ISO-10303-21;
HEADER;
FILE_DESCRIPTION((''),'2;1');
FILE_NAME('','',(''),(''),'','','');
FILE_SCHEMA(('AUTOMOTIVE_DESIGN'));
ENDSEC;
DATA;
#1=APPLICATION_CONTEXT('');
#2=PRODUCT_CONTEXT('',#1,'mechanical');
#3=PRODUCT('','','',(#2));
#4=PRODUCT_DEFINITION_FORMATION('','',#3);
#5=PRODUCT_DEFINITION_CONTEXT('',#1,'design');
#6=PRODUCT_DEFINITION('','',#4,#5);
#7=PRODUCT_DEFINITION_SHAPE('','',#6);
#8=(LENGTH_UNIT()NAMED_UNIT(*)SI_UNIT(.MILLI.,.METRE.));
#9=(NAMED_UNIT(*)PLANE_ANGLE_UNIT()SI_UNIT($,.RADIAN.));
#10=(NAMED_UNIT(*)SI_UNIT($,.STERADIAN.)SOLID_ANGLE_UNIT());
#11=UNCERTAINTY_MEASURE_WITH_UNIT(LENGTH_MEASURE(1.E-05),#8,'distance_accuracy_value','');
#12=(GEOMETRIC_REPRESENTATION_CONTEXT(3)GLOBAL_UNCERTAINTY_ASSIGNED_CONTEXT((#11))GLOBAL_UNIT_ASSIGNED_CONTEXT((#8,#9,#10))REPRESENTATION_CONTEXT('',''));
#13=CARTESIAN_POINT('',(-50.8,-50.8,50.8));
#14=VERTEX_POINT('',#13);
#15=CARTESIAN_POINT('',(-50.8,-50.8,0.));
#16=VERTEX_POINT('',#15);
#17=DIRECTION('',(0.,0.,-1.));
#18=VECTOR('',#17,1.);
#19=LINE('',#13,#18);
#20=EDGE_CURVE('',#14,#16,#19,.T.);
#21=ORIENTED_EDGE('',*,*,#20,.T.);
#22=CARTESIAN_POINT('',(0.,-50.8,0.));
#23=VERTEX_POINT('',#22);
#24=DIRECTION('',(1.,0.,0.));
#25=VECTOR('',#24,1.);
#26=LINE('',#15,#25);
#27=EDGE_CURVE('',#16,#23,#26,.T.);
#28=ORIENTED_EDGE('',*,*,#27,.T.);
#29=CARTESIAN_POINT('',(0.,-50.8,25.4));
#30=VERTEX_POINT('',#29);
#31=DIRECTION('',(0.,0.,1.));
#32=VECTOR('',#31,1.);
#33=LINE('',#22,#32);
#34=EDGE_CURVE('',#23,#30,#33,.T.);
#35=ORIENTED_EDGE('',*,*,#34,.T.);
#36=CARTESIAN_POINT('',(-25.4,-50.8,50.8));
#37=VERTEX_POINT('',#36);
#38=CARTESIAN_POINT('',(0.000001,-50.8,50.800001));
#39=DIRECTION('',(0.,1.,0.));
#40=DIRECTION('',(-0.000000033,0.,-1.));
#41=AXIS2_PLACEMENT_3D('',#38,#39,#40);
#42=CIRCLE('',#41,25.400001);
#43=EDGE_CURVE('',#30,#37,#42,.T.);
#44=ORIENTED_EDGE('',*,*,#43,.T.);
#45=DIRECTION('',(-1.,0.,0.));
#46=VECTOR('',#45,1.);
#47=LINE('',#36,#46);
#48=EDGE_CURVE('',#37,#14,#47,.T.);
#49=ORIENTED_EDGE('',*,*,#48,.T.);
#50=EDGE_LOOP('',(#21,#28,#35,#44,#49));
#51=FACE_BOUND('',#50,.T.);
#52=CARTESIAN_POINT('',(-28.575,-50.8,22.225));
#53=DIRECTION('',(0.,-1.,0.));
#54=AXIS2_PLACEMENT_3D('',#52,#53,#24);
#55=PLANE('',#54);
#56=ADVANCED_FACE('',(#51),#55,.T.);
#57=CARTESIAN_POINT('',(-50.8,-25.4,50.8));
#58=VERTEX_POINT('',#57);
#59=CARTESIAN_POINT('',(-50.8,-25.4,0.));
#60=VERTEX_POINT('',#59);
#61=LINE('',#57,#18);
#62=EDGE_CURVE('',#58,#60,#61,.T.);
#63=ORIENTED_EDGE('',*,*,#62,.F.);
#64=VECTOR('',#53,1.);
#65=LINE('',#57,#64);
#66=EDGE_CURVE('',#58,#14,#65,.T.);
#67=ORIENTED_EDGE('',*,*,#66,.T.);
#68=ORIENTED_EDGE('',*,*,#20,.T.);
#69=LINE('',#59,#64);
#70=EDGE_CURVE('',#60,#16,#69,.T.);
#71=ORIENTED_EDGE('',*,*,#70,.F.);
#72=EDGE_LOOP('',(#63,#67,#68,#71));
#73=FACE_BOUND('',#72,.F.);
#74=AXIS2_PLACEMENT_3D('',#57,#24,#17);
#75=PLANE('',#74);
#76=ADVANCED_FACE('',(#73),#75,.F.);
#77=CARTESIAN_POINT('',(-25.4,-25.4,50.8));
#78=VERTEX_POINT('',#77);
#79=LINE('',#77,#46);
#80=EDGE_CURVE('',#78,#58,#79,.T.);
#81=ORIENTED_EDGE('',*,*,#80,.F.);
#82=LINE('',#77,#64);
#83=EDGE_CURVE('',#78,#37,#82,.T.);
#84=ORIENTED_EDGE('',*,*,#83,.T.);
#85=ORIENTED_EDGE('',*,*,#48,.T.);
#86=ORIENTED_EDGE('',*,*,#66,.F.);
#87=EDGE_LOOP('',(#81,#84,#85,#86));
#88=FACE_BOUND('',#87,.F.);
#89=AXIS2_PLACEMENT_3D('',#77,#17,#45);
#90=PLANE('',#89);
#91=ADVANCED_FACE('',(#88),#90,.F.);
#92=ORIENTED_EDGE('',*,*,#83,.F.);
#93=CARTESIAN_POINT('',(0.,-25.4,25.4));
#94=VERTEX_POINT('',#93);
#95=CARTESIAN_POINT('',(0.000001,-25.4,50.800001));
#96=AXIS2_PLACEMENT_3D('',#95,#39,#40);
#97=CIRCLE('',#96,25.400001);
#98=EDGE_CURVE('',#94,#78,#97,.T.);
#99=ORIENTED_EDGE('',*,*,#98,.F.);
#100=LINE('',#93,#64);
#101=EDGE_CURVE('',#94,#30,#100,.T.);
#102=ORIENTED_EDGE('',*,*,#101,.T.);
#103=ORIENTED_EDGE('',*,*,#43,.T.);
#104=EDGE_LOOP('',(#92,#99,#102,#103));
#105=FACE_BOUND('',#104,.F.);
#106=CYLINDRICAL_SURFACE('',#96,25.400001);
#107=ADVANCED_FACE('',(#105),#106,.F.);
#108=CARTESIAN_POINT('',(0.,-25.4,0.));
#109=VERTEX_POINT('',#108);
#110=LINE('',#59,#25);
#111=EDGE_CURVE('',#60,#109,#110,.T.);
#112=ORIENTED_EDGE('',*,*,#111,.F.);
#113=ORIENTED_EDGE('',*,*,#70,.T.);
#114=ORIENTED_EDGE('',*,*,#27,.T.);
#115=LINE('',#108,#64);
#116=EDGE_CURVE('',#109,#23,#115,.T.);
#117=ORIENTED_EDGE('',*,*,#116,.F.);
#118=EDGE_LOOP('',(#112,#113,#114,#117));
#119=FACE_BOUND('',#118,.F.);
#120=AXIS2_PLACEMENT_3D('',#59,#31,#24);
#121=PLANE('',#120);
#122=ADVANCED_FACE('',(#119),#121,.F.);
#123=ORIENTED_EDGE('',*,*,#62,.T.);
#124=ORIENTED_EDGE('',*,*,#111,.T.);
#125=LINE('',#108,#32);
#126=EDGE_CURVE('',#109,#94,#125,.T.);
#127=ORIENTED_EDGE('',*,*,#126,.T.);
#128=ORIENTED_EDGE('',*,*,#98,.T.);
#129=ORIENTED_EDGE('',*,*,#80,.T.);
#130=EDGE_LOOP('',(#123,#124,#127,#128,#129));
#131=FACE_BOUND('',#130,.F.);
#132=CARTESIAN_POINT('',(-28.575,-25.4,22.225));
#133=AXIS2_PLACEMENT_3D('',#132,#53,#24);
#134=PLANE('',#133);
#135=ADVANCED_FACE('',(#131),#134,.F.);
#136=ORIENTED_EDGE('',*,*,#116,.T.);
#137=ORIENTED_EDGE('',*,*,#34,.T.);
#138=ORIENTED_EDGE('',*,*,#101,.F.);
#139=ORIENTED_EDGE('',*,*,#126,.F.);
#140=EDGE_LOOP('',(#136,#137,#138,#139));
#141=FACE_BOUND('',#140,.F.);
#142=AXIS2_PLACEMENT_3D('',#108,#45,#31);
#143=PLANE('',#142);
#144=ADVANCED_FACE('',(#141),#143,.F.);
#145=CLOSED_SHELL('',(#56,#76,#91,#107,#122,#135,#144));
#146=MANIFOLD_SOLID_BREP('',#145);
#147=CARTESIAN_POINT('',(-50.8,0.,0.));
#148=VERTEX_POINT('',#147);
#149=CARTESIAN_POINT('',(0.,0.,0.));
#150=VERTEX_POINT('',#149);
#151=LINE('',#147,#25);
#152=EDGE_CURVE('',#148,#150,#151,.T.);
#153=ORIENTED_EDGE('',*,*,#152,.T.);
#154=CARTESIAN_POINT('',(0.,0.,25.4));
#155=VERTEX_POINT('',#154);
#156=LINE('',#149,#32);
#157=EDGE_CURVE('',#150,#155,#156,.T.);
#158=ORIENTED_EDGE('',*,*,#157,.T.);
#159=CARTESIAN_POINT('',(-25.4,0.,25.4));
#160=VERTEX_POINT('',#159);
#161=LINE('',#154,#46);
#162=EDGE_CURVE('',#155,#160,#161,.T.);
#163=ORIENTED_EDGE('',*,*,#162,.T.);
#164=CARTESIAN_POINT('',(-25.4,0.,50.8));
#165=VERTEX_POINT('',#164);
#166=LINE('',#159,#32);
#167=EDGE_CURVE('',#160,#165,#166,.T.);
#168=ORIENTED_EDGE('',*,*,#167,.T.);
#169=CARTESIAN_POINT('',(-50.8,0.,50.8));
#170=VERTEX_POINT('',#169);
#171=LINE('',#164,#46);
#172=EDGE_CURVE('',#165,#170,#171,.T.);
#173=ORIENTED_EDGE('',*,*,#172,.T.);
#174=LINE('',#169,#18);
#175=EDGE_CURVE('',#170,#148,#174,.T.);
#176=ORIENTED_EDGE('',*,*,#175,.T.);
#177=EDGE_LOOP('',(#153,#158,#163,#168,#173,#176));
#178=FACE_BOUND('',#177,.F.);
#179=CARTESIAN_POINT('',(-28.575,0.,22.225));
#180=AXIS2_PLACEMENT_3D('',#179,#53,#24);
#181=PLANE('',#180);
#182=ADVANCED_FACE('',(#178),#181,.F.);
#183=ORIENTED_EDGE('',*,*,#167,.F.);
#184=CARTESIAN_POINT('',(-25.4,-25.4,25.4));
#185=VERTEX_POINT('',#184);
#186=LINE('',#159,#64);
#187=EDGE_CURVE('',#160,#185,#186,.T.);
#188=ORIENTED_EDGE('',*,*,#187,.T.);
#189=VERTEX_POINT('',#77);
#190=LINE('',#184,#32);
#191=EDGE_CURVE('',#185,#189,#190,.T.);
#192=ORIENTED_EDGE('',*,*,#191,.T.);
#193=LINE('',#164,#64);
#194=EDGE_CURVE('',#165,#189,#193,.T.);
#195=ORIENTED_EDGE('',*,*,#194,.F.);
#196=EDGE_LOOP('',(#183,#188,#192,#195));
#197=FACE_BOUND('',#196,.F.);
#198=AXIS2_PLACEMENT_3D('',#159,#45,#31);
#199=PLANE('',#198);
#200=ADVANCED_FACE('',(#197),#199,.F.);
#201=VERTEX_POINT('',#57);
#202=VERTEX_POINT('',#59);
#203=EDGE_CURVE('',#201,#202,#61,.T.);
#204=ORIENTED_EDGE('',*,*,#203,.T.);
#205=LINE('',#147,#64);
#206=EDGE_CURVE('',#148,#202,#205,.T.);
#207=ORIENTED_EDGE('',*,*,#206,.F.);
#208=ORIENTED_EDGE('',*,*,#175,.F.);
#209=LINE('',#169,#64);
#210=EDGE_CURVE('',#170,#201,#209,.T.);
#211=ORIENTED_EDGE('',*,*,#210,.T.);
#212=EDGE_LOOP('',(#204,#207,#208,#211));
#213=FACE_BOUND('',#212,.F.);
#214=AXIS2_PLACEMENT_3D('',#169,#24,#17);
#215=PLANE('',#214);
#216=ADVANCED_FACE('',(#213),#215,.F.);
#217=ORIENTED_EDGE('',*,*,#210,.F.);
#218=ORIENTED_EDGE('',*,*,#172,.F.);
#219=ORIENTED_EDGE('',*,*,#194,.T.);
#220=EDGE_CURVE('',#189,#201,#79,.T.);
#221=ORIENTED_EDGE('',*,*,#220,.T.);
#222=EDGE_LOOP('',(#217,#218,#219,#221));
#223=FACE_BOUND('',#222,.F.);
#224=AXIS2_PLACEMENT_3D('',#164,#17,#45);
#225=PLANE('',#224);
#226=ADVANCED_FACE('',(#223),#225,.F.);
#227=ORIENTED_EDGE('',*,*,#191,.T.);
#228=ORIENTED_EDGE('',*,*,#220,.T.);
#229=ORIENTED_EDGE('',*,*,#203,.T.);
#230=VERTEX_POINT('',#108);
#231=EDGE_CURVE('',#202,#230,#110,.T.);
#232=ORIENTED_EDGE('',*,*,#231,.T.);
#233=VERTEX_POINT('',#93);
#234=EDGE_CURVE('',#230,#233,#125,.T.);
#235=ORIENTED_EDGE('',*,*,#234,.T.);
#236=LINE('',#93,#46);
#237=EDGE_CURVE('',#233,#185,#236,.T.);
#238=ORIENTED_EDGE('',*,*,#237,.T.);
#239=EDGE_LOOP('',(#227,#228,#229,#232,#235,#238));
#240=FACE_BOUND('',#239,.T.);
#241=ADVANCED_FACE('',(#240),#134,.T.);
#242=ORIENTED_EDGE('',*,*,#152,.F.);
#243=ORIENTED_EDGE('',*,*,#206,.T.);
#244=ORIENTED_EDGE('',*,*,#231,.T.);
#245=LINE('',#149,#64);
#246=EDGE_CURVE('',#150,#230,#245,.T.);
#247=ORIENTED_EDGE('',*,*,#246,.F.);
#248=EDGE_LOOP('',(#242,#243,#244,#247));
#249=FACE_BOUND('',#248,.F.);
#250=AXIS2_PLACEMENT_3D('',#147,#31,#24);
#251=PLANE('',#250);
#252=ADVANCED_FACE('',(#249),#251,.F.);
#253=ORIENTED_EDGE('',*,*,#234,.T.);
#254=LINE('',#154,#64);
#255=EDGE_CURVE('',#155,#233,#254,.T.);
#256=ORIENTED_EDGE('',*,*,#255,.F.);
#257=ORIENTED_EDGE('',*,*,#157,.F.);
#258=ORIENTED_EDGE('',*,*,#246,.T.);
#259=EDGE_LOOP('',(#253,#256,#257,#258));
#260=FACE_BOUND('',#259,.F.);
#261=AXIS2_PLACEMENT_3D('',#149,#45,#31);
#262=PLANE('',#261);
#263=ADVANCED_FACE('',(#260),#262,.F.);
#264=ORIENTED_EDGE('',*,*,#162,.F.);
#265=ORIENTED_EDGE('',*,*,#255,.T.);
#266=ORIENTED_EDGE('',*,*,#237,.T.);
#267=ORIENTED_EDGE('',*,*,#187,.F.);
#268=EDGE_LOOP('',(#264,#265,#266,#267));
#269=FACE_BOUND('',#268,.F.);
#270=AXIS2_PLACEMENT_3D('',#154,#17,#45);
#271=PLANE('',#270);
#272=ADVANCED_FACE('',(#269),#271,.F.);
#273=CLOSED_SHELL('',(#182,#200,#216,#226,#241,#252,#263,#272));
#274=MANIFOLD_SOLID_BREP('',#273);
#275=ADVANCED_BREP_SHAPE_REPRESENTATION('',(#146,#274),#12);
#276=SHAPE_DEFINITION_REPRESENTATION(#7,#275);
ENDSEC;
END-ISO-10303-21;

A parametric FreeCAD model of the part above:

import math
import FreeCAD as App
import Part
import Sketcher
from FreeCAD import Vector
Q = App.Units.Quantity


def add_polygon(sketch, points):
    """Adds a closed chain of lines whose ends are joined by coincident constraints."""
    first, n = sketch.GeometryCount, len(points)
    for a, b in zip(points, points[1:] + points[:1]):
        sketch.addGeometry(Part.LineSegment(App.Vector(*a, 0), App.Vector(*b, 0)), False)
    for i in range(n):
        sketch.addConstraint(Sketcher.Constraint("Coincident", first + i, 2, first + (i + 1) % n, 1))

doc = App.newDocument("Part")
body = doc.addObject("PartDesign::Body", "Body")

# Sketch on XZ plane
sketch1 = body.newObject("Sketcher::SketchObject", "Sketch")
sketch1.AttachmentSupport = (doc.getObject("XZ_Plane"), [""])
sketch1.MapMode = "FlatFace"
add_polygon(sketch1, [(-51, 0), (0, 0), (0, 25), (-25, 25), (-25, 51), (-51, 51)])  # lines 0-5
sketch1.addConstraint([
    Sketcher.Constraint("Horizontal", 0),
    Sketcher.Constraint("Vertical", 1),
    Sketcher.Constraint("Horizontal", 2),
    Sketcher.Constraint("Vertical", 3),
    Sketcher.Constraint("Horizontal", 4),
    Sketcher.Constraint("Vertical", 5),
    Sketcher.Constraint("Coincident", 0, 2, -1, 1),
    Sketcher.Constraint("Equal", 2, 4),
    Sketcher.Constraint("Equal", 4, 1),
    Sketcher.Constraint("Equal", 1, 3),
    Sketcher.Constraint("DistanceX", 0, 1, 0, 2, Q("2 in")),
])
pad1 = body.newObject("PartDesign::Pad", "Pad")
pad1.Profile = sketch1
pad1.Length = Q("1 in")
body2 = doc.addObject("PartDesign::Body", "Body001")

# Sketch on XZ plane
sketch2 = body2.newObject("Sketcher::SketchObject", "Sketch001")
sketch2.AttachmentSupport = (doc.getObject("XZ_Plane001"), [""])
sketch2.MapMode = "FlatFace"
sketch2.AttachmentOffset = App.Placement(Vector(0, 0, 1 * 25.4), App.Rotation())
sketch2.addGeometry([
    Part.LineSegment(Vector(-25, 51, 0), Vector(-51, 51, 0)),  # 0
    Part.LineSegment(Vector(-51, 51, 0), Vector(-51, 0, 0)),  # 1
    Part.LineSegment(Vector(-51, 0, 0), Vector(0, 0, 0)),  # 2
    Part.LineSegment(Vector(0, 0, 0), Vector(0, 25, 0)),  # 3
    Part.ArcOfCircle(Part.Circle(Vector(0, 51, 0), Vector(0, 0, 1), 25), math.radians(-180), math.radians(-90)),  # 4
], False)
sketch2.addConstraint([
    Sketcher.Constraint("Coincident", 0, 2, 1, 1),
    Sketcher.Constraint("Coincident", 1, 2, 2, 1),
    Sketcher.Constraint("Coincident", 2, 2, 3, 1),
    Sketcher.Constraint("Coincident", 3, 2, 4, 2),
    Sketcher.Constraint("Coincident", 4, 1, 0, 1),
    Sketcher.Constraint("Horizontal", 0),
    Sketcher.Constraint("Vertical", 1),
    Sketcher.Constraint("Horizontal", 2),
    Sketcher.Constraint("Vertical", 3),
    Sketcher.Constraint("Coincident", 2, 2, -1, 1),
    Sketcher.Constraint("PointOnObject", 4, 3, -2),
    Sketcher.Constraint("Horizontal", 4, 3, 0, 2),
    Sketcher.Constraint("Equal", 2, 1),
    Sketcher.Constraint("Radius", 4, Q("1 in")),
    Sketcher.Constraint("DistanceX", 0, 2, 0, 1, Q("1 in")),
])
pad2 = body2.newObject("PartDesign::Pad", "Pad001")
pad2.Profile = sketch2
pad2.Length = Q("1 in")

doc.recompute()
